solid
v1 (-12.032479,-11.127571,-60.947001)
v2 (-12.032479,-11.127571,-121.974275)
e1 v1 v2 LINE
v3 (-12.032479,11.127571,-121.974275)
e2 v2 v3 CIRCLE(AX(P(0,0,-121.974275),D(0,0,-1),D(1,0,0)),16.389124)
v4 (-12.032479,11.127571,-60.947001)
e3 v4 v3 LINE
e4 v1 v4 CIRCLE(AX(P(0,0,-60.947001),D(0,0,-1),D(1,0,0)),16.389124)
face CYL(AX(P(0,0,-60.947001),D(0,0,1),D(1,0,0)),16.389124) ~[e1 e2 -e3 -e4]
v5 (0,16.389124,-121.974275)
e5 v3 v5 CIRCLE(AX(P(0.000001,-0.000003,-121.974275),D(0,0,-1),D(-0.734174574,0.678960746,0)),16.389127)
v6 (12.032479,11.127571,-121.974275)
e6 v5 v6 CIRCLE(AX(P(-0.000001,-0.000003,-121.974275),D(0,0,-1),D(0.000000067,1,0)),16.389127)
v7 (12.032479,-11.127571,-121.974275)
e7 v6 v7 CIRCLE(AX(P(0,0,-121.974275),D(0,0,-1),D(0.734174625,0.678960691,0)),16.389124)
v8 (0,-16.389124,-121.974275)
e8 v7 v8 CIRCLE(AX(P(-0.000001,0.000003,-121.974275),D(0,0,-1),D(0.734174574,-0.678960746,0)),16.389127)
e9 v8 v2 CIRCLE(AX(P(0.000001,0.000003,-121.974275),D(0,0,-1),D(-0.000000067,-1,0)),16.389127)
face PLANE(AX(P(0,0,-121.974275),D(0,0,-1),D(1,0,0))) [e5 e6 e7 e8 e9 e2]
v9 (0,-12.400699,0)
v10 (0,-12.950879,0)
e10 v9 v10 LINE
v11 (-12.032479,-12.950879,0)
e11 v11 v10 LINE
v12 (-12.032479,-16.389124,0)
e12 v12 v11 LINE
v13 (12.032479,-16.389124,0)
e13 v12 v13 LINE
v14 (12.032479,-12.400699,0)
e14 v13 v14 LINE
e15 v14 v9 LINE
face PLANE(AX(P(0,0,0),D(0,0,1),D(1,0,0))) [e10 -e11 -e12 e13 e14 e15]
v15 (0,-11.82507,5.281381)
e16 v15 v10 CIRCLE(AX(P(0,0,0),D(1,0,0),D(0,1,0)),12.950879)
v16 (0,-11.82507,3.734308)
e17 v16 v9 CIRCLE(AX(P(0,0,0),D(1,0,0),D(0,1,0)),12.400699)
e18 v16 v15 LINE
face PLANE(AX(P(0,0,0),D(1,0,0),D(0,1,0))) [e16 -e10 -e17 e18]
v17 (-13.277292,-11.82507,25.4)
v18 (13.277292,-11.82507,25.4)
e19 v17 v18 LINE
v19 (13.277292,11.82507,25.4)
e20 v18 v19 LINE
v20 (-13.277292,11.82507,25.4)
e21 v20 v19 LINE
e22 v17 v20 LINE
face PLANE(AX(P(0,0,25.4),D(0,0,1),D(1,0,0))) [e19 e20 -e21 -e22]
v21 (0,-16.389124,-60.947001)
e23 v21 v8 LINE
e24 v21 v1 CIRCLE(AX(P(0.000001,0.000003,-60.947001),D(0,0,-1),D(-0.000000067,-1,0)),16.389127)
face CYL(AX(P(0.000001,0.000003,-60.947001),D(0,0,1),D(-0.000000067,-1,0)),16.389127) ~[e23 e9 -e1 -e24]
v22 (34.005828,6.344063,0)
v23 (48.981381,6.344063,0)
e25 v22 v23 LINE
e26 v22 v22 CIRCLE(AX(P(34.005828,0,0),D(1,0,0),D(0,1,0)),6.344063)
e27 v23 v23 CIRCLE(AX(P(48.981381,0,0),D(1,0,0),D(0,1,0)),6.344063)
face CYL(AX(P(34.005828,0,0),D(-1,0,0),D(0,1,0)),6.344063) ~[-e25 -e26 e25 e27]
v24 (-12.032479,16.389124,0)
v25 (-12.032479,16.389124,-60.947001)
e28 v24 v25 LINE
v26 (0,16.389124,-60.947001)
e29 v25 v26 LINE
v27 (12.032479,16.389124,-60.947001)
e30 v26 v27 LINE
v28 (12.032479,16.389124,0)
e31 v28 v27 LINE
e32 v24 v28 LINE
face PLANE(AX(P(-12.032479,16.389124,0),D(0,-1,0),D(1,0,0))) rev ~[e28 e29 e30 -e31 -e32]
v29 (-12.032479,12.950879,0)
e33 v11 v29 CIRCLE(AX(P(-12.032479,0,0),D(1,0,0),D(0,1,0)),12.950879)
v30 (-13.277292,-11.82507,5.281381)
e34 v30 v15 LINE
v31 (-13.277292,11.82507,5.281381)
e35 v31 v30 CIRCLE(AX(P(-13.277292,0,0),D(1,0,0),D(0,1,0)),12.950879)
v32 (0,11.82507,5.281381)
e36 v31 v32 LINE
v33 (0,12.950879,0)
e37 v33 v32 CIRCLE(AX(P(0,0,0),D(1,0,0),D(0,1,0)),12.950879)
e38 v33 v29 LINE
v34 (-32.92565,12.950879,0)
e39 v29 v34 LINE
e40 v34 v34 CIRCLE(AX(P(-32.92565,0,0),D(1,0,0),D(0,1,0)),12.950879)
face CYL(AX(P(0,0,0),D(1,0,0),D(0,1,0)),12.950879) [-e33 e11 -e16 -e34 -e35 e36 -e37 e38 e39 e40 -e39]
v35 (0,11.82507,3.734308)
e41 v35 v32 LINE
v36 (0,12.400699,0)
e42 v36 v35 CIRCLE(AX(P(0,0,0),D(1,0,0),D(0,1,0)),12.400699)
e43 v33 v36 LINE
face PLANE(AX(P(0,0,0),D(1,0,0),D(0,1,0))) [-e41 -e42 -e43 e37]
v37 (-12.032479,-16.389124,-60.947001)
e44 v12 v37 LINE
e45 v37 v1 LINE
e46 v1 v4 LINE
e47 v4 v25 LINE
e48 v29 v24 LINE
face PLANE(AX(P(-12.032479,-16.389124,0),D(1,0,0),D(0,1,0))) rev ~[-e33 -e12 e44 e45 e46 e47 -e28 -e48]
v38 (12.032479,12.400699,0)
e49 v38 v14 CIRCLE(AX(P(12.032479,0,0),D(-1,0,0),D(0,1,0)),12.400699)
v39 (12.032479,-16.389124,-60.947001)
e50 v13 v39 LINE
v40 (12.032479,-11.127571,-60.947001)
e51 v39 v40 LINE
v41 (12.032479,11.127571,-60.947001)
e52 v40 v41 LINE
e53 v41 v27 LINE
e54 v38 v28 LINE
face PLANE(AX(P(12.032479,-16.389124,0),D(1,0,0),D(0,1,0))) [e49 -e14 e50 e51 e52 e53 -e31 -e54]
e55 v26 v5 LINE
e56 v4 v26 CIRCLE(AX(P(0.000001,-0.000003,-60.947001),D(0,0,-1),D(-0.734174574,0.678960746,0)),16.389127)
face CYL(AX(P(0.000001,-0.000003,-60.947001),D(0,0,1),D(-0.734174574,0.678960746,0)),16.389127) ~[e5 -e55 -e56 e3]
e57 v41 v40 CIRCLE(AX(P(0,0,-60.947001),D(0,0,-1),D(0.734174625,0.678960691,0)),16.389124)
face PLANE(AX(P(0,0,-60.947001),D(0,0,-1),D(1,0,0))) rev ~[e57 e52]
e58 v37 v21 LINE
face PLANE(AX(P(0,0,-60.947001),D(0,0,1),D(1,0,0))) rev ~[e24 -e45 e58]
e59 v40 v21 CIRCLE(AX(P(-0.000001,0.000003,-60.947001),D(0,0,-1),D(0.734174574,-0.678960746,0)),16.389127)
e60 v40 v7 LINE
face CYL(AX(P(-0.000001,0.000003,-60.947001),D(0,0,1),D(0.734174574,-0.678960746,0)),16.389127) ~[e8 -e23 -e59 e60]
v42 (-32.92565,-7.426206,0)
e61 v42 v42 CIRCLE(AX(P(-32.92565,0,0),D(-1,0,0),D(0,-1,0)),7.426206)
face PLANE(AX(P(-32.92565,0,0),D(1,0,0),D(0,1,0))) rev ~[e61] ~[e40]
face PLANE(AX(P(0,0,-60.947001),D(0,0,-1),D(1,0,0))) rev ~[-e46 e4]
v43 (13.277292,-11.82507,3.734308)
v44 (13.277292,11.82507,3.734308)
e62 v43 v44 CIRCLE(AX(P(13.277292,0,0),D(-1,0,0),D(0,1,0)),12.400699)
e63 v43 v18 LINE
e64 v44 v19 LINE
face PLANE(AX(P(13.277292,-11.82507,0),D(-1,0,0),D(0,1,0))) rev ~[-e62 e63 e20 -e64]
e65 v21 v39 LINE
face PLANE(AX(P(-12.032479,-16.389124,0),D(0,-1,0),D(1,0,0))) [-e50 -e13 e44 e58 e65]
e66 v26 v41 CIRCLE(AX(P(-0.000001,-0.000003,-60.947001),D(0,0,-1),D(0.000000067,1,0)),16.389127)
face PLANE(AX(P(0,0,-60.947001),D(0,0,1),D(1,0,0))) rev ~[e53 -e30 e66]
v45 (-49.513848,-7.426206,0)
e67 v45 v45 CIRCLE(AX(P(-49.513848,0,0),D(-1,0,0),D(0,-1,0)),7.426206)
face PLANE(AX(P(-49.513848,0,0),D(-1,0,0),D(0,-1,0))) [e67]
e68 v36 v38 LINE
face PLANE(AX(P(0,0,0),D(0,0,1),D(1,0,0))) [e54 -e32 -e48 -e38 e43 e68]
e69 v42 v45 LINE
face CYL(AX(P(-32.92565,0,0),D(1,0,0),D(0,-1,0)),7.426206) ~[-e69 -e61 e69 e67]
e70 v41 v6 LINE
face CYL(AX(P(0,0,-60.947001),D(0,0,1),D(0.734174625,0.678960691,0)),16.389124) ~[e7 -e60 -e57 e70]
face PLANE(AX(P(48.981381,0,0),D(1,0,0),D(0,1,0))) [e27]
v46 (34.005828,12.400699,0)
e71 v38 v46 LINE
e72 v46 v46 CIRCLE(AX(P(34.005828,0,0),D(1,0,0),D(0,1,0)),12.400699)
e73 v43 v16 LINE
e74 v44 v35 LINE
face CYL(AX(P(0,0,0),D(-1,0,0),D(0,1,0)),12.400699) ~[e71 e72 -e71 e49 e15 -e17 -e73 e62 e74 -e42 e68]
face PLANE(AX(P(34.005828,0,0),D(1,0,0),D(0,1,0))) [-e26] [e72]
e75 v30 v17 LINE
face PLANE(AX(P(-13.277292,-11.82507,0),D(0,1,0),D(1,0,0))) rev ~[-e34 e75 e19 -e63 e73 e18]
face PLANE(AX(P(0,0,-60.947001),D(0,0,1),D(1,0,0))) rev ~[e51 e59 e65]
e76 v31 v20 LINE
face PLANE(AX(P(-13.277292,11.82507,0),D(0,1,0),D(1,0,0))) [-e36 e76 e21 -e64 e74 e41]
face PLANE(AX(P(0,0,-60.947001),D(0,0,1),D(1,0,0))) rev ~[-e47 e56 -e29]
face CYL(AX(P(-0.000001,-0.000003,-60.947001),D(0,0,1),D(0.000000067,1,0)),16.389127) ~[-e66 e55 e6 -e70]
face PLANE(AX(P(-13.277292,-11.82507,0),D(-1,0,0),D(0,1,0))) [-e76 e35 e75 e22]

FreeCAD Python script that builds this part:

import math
import FreeCAD as App
import Part
import Sketcher

V = App.Vector
Q = App.Units.Quantity


def add_polygon(sketch, points):
    """Adds a closed chain of lines whose ends are joined by coincident constraints."""
    first, n = sketch.GeometryCount, len(points)
    for a, b in zip(points, points[1:] + points[:1]):
        sketch.addGeometry(Part.LineSegment(App.Vector(*a, 0), App.Vector(*b, 0)), False)
    for i in range(n):
        sketch.addConstraint(Sketcher.Constraint("Coincident", first + i, 2, first + (i + 1) % n, 1))

doc = App.newDocument("Part")
body = doc.addObject("PartDesign::Body", "Body")

# Sketch on YZ plane
sketch1 = doc.addObject("Sketcher::SketchObject", "Sketch")
body.addObject(sketch1)
sketch1.AttachmentSupport = (doc.YZ_Plane, [""])
sketch1.MapMode = "FlatFace"
sketch1.addGeometry(Part.Circle(V(0, 0, 0), V(0, 0, 1), 12), False)
sketch1.addConstraint([
    Sketcher.Constraint("Coincident", 0, 3, -1, 1),
    Sketcher.Constraint("Diameter", 0, 24.801398),
])
pad1 = doc.addObject("PartDesign::Pad", "Pad")
body.addObject(pad1)
pad1.Profile = sketch1
pad1.Length = 34.005828

# Sketch on YZ plane
sketch2 = doc.addObject("Sketcher::SketchObject", "Sketch001")
body.addObject(sketch2)
sketch2.AttachmentSupport = (doc.YZ_Plane, [""])
sketch2.MapMode = "FlatFace"
sketch2.addGeometry(Part.Circle(V(0, 0, 0), V(0, 0, 1), 13), False)
sketch2.addConstraint([
    Sketcher.Constraint("Coincident", 0, 3, -1, 1),
    Sketcher.Constraint("Diameter", 0, 25.901758),
])
pad2 = doc.addObject("PartDesign::Pad", "Pad001")
body.addObject(pad2)
pad2.Profile = sketch2
pad2.Length = 32.92565
pad2.Reversed = True

# Sketch on XY plane
sketch3 = doc.addObject("Sketcher::SketchObject", "Sketch002")
body.addObject(sketch3)
sketch3.AttachmentSupport = (doc.XY_Plane, [""])
sketch3.MapMode = "FlatFace"
add_polygon(sketch3, [(-12, 16), (-12, -16), (12, -16), (12, 16)])  # lines 0-3
sketch3.addConstraint([
    Sketcher.Constraint("Vertical", 0),
    Sketcher.Constraint("Horizontal", 1),
    Sketcher.Constraint("Vertical", 2),
    Sketcher.Constraint("Horizontal", 3),
    Sketcher.Constraint("Symmetric", 0, 2, 2, 2, -1, 1),
    Sketcher.Constraint("DistanceX", 1, 1, 1, 2, 24.064958),
    Sketcher.Constraint("DistanceY", 0, 2, 0, 1, 32.778248),
])
pad3 = doc.addObject("PartDesign::Pad", "Pad002")
body.addObject(pad3)
pad3.Profile = sketch3
pad3.Length = 60.947001
pad3.Reversed = True

# Sketch on XY plane
sketch4 = doc.addObject("Sketcher::SketchObject", "Sketch003")
body.addObject(sketch4)
sketch4.AttachmentSupport = (doc.XY_Plane, [""])
sketch4.MapMode = "FlatFace"
add_polygon(sketch4, [(-13, 12), (-13, -12), (13, -12), (13, 12)])  # lines 0-3
sketch4.addConstraint([
    Sketcher.Constraint("Vertical", 0),
    Sketcher.Constraint("Horizontal", 1),
    Sketcher.Constraint("Vertical", 2),
    Sketcher.Constraint("Horizontal", 3),
    Sketcher.Constraint("Symmetric", 0, 2, 2, 2, -1, 1),
    Sketcher.Constraint("DistanceY", 0, 2, 0, 1, 23.65014),
    Sketcher.Constraint("DistanceX", 1, 1, 1, 2, 26.554584),
])
pad4 = doc.addObject("PartDesign::Pad", "Pad003")
body.addObject(pad4)
pad4.Profile = sketch4
pad4.Length = Q("1 in")

# Sketch on YZ plane
sketch5 = doc.addObject("Sketcher::SketchObject", "Sketch004")
body.addObject(sketch5)
sketch5.AttachmentSupport = (doc.YZ_Plane, [""])
sketch5.MapMode = "FlatFace"
sketch5.AttachmentOffset = App.Placement(V(0, 0, 34.005828), App.Rotation())
sketch5.addGeometry(Part.Circle(V(0, 0, 0), V(0, 0, 1), 6), False)
sketch5.addConstraint([
    Sketcher.Constraint("Coincident", 0, 3, -1, 1),
    Sketcher.Constraint("Diameter", 0, 12.688126),
])
pad5 = doc.addObject("PartDesign::Pad", "Pad004")
body.addObject(pad5)
pad5.Profile = sketch5
pad5.Length = 14.975553

# Sketch on YZ plane
sketch6 = doc.addObject("Sketcher::SketchObject", "Sketch005")
body.addObject(sketch6)
sketch6.AttachmentSupport = (doc.YZ_Plane, [""])
sketch6.MapMode = "FlatFace"
sketch6.AttachmentOffset = App.Placement(V(0, 0, -32.92565), App.Rotation())
sketch6.addGeometry(Part.Circle(V(0, 0, 0), V(0, 0, 1), 7), False)
sketch6.addConstraint([
    Sketcher.Constraint("Coincident", 0, 3, -1, 1),
    Sketcher.Constraint("Diameter", 0, 14.852412),
])
pad6 = doc.addObject("PartDesign::Pad", "Pad005")
body.addObject(pad6)
pad6.Profile = sketch6
pad6.Length = 16.588198
pad6.Reversed = True

# Sketch on XY plane
sketch7 = doc.addObject("Sketcher::SketchObject", "Sketch006")
body.addObject(sketch7)
sketch7.AttachmentSupport = (doc.XY_Plane, [""])
sketch7.MapMode = "FlatFace"
sketch7.AttachmentOffset = App.Placement(V(0, 0, -60.947001), App.Rotation())
sketch7.addGeometry([
    Part.ArcOfCircle(Part.Circle(V(0, 0, 0), V(0, 0, 1), 16), math.radians(-90), math.radians(-43)),  # 0
    Part.ArcOfCircle(Part.Circle(V(0, 0, 0), V(0, 0, 1), 16), math.radians(-137), math.radians(-90)),  # 1
    Part.ArcOfCircle(Part.Circle(V(0, 0, 0), V(0, 0, 1), 16), math.radians(137), math.radians(223)),  # 2
    Part.ArcOfCircle(Part.Circle(V(0, 0, 0), V(0, 0, 1), 16), math.radians(90), math.radians(137)),  # 3
    Part.ArcOfCircle(Part.Circle(V(0, 0, 0), V(0, 0, 1), 16), math.radians(43), math.radians(90)),  # 4
    Part.ArcOfCircle(Part.Circle(V(0, 0, 0), V(0, 0, 1), 16), math.radians(-43), math.radians(43)),  # 5
], False)
sketch7.addConstraint([
    Sketcher.Constraint("Tangent", 0, 1, 1, 2),
    Sketcher.Constraint("Tangent", 1, 1, 2, 2),
    Sketcher.Constraint("Tangent", 2, 1, 3, 2),
    Sketcher.Constraint("Tangent", 3, 1, 4, 2),
    Sketcher.Constraint("Tangent", 4, 1, 5, 2),
    Sketcher.Constraint("Tangent", 5, 1, 0, 2),
    Sketcher.Constraint("Coincident", 0, 3, -1, 1),
    Sketcher.Constraint("Coincident", 2, 3, -1, 1),
    Sketcher.Constraint("Equal", 1, 3),
    Sketcher.Constraint("PointOnObject", 0, 1, -2),
    Sketcher.Constraint("PointOnObject", 3, 1, -2),
    Sketcher.Constraint("Horizontal", 2, 1, 4, 1),
    Sketcher.Constraint("Horizontal", 1, 1, 5, 1),
    Sketcher.Constraint("Vertical", 1, 1, 2, 1),
    Sketcher.Constraint("Radius", 0, 16.389127),
    Sketcher.Constraint("DistanceX", 1, 1, -1, 1, 12.032479),
])
pad7 = doc.addObject("PartDesign::Pad", "Pad006")
body.addObject(pad7)
pad7.Profile = sketch7
pad7.Length = 61.027274
pad7.Reversed = True

doc.recompute()
